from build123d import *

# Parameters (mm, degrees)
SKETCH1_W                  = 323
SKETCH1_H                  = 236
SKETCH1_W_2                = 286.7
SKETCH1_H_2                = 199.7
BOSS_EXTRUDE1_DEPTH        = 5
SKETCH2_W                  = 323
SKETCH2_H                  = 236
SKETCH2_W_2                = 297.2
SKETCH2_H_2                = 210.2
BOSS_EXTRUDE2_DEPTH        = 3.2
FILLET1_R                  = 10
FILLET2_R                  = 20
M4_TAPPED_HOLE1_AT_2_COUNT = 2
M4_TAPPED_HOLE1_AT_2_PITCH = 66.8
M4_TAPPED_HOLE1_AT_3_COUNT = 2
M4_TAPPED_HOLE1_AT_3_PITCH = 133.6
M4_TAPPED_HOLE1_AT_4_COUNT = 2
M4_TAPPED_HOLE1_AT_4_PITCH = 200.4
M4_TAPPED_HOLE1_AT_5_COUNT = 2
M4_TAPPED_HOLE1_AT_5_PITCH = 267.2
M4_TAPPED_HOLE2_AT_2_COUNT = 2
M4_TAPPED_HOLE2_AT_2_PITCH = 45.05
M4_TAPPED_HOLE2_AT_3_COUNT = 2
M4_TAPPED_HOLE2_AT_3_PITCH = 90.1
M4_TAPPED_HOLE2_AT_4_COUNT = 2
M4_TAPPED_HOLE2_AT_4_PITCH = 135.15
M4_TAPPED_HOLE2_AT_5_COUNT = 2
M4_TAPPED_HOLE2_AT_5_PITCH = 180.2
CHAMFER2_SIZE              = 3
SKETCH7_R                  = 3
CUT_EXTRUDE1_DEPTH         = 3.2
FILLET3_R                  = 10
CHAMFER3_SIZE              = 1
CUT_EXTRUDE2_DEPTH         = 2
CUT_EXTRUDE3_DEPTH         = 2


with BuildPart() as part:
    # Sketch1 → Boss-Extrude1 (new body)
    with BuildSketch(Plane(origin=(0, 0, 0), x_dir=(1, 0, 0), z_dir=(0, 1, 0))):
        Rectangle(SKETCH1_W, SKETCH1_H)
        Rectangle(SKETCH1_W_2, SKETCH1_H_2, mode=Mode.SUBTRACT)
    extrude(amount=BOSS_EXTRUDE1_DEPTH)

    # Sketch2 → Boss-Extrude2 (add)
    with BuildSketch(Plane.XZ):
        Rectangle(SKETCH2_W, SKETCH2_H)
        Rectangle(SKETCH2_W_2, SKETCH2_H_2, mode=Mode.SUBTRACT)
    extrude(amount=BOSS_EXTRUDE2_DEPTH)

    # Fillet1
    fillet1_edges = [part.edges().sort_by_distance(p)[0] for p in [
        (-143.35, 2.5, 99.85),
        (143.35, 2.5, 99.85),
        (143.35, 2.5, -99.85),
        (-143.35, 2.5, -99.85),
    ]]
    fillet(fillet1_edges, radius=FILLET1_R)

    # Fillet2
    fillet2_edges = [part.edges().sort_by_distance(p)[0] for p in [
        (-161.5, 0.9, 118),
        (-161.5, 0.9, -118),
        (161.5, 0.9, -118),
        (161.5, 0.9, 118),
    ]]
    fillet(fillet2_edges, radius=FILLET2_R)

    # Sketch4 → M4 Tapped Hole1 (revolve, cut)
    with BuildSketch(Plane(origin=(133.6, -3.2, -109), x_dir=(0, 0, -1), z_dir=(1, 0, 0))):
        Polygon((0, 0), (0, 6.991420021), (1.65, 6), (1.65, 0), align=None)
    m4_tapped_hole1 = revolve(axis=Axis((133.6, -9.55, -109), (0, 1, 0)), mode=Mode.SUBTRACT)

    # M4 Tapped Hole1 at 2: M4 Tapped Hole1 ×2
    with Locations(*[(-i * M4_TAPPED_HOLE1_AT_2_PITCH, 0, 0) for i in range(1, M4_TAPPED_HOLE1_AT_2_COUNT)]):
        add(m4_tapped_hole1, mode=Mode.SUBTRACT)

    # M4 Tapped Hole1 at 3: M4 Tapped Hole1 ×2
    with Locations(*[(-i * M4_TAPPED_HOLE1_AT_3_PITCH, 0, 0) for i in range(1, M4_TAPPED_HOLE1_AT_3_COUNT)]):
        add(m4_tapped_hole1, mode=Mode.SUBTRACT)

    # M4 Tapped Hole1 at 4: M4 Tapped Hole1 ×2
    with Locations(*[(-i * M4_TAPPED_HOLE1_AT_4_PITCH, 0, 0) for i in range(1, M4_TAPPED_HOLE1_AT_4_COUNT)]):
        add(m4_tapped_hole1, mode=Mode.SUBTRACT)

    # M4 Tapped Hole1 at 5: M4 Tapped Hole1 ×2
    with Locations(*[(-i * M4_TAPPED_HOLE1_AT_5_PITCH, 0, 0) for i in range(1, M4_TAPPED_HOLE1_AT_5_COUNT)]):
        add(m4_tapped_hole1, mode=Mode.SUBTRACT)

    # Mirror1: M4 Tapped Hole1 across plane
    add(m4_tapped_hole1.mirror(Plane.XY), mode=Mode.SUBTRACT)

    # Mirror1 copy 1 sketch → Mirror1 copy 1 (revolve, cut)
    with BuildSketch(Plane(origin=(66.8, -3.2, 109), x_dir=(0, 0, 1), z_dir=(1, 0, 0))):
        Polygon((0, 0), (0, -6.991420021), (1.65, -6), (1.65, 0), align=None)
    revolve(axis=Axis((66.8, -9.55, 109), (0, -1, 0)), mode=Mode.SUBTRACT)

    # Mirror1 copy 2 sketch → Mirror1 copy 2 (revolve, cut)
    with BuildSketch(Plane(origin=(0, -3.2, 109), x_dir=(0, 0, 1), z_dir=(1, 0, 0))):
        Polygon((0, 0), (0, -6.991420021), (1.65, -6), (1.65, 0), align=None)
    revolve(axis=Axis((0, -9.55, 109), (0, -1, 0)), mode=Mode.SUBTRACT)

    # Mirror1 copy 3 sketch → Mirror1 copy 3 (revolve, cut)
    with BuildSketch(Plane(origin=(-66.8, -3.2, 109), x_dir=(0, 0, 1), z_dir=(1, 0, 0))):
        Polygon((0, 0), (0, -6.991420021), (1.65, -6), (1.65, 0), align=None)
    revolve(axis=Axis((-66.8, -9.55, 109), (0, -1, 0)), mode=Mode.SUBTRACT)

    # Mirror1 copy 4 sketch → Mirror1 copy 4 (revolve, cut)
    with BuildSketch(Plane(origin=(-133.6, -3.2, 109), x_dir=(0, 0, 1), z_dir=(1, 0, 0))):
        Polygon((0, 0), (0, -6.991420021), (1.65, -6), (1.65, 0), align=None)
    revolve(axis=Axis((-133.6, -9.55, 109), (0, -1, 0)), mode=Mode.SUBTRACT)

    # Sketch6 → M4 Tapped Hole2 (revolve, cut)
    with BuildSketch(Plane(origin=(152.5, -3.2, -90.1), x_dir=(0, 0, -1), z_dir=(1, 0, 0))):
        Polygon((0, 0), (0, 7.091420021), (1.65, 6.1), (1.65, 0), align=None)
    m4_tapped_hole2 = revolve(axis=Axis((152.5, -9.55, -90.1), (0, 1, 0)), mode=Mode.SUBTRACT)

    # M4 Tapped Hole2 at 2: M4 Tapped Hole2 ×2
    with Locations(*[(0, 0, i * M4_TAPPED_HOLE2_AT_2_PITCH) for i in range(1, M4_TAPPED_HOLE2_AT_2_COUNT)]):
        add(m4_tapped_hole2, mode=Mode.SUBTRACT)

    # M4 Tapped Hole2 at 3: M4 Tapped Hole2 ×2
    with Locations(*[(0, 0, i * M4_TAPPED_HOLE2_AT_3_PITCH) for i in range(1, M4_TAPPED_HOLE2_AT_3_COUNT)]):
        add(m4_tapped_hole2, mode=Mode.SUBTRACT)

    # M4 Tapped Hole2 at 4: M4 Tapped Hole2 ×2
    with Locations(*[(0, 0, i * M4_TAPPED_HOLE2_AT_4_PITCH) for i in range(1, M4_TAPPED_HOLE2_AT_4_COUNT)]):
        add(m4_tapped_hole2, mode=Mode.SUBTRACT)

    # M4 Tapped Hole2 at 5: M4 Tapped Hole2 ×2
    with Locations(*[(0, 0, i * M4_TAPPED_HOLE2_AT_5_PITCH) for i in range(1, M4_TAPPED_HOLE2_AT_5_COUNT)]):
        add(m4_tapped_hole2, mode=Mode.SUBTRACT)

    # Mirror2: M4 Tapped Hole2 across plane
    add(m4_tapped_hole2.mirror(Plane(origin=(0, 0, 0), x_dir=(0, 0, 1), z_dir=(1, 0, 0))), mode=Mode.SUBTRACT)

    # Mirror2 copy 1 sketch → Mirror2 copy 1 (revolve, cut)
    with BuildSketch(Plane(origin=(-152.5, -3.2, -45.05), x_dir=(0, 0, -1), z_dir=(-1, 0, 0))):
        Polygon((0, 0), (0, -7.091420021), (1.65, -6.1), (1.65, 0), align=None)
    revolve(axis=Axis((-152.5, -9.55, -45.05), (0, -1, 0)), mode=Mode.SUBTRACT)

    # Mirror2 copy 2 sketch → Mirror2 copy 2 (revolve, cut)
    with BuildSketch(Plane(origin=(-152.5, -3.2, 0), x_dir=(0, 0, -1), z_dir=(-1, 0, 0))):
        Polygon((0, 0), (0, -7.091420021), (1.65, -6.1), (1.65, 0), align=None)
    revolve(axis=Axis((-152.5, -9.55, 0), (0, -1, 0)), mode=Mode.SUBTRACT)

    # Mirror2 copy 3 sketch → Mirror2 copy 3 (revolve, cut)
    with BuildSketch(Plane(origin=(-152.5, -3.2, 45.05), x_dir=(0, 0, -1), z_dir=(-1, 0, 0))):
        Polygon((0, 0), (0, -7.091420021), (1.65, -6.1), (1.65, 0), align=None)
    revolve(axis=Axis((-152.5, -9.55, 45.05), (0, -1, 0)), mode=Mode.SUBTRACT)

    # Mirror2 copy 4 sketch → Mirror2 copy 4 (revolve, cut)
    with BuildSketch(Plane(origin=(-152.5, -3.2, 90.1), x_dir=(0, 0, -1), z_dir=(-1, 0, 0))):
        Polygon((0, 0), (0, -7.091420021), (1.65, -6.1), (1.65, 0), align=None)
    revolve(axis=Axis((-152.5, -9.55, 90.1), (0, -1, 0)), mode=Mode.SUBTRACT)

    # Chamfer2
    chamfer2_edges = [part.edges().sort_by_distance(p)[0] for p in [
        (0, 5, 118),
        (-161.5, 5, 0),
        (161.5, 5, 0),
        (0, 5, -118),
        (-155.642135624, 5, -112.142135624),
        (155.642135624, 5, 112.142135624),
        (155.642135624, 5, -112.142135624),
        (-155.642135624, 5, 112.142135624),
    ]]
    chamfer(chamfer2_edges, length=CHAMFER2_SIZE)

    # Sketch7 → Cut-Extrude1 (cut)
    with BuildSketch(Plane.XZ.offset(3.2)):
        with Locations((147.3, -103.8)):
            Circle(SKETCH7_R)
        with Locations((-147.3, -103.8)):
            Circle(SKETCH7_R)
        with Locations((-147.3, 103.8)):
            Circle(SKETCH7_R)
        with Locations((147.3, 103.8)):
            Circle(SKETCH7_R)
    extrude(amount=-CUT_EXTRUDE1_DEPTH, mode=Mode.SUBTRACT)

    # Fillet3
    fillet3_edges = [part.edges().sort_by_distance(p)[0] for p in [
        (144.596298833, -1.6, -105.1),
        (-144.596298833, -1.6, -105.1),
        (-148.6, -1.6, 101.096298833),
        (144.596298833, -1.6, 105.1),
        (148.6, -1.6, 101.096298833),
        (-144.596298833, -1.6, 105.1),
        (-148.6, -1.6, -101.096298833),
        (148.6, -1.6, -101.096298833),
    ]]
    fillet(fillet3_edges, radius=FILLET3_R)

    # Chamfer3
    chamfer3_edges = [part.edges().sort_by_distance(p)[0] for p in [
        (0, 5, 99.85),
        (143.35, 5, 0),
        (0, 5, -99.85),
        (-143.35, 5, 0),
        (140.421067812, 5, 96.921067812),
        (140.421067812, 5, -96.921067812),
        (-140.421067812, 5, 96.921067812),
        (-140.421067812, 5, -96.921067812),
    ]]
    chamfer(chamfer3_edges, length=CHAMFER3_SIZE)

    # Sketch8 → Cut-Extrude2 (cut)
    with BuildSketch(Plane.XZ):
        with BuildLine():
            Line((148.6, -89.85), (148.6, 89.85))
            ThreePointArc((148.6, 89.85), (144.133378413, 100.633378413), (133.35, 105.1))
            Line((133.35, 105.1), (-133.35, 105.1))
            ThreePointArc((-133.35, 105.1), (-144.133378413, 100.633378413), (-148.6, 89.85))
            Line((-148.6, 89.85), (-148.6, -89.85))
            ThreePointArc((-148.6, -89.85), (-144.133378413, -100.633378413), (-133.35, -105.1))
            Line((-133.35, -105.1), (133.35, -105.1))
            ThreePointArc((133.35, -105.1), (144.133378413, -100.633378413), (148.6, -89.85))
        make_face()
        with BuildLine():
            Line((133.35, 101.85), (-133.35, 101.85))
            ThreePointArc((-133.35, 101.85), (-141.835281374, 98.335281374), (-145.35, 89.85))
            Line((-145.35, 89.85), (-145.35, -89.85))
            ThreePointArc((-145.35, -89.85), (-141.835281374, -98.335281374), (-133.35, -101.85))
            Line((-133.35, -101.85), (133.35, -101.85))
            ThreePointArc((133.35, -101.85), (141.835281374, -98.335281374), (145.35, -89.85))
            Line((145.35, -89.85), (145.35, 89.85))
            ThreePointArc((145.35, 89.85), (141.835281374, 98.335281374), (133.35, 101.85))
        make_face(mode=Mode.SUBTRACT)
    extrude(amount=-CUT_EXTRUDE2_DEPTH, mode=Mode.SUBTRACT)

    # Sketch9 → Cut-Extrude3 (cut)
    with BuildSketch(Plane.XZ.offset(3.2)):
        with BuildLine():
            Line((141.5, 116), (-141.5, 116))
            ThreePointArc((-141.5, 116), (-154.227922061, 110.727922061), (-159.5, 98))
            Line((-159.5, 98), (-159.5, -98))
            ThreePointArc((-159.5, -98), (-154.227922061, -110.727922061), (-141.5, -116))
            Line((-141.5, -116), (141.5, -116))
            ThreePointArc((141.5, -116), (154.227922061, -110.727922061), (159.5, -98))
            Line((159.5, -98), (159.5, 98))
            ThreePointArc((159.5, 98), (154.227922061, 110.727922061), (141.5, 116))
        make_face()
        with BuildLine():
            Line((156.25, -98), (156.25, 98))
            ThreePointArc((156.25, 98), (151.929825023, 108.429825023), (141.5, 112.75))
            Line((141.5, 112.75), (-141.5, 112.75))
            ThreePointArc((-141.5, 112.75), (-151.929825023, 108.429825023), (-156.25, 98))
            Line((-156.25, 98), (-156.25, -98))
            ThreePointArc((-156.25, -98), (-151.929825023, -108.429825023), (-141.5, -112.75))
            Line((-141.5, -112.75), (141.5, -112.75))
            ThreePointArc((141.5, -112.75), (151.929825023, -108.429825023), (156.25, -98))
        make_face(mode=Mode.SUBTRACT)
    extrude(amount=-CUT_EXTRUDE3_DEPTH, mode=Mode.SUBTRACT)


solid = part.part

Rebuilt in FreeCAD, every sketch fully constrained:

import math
import FreeCAD as App
import Part
import Sketcher
from FreeCAD import Vector
Q = App.Units.Quantity


def edges_at(feature, points):
    """Names of the edges that pass closest to the given points."""
    edges = feature.Shape.Edges
    near = lambda p: min(range(len(edges)), key=lambda i: edges[i].distToShape(Part.Vertex(*p))[0])
    return sorted({f"Edge{near(p) + 1}" for p in points})


def add_polygon(sketch, points):
    """Adds a closed chain of lines whose ends are joined by coincident constraints."""
    first, n = sketch.GeometryCount, len(points)
    for a, b in zip(points, points[1:] + points[:1]):
        sketch.addGeometry(Part.LineSegment(App.Vector(*a, 0), App.Vector(*b, 0)), False)
    for i in range(n):
        sketch.addConstraint(Sketcher.Constraint("Coincident", first + i, 2, first + (i + 1) % n, 1))

doc = App.newDocument("Part")
body = doc.addObject("PartDesign::Body", "Body")

sketch1 = body.newObject("Sketcher::SketchObject", "Sketch")
sketch1.AttachmentSupport = (doc.getObject("XZ_Plane"), [""])
sketch1.MapMode = "FlatFace"
add_polygon(sketch1, [(-162, -118), (-162, 118), (162, 118), (162, -118)])
add_polygon(sketch1, [(143, 100), (-143, 100), (-143, -100), (143, -100)])
sketch1.addConstraint([
    Sketcher.Constraint("Vertical", 0),
    Sketcher.Constraint("Horizontal", 1),
    Sketcher.Constraint("Vertical", 2),
    Sketcher.Constraint("Horizontal", 3),
    Sketcher.Constraint("Horizontal", 4),
    Sketcher.Constraint("Vertical", 5),
    Sketcher.Constraint("Horizontal", 6),
    Sketcher.Constraint("Vertical", 7),
    Sketcher.Constraint("Symmetric", 0, 2, 2, 2, -1, 1),
    Sketcher.Constraint("Symmetric", 4, 2, 6, 2, -1, 1),
    Sketcher.Constraint("DistanceX", 1, 1, 1, 2, 323.0),
    Sketcher.Constraint("DistanceY", 0, 1, 0, 2, 236.0),
    Sketcher.Constraint("DistanceX", 4, 2, 4, 1, 286.7),
    Sketcher.Constraint("DistanceY", 5, 2, 5, 1, 199.7),
])
pad1 = body.newObject("PartDesign::Pad", "Pad")
pad1.Profile = sketch1
pad1.Length = 5
pad1.Reversed = True

sketch2 = body.newObject("Sketcher::SketchObject", "Sketch001")
sketch2.AttachmentSupport = (doc.getObject("XZ_Plane"), [""])
sketch2.MapMode = "FlatFace"
add_polygon(sketch2, [(-162, 118), (-162, -118), (162, -118), (162, 118)])
add_polygon(sketch2, [(149, -105), (-149, -105), (-149, 105), (149, 105)])
sketch2.addConstraint([
    Sketcher.Constraint("Vertical", 0),
    Sketcher.Constraint("Horizontal", 1),
    Sketcher.Constraint("Vertical", 2),
    Sketcher.Constraint("Horizontal", 3),
    Sketcher.Constraint("Horizontal", 4),
    Sketcher.Constraint("Vertical", 5),
    Sketcher.Constraint("Horizontal", 6),
    Sketcher.Constraint("Vertical", 7),
    Sketcher.Constraint("Symmetric", 0, 2, 2, 2, -1, 1),
    Sketcher.Constraint("Symmetric", 4, 2, 6, 2, -1, 1),
    Sketcher.Constraint("DistanceX", 1, 1, 1, 2, 323.0),
    Sketcher.Constraint("DistanceY", 0, 2, 0, 1, 236.0),
    Sketcher.Constraint("DistanceX", 4, 2, 4, 1, 297.2),
    Sketcher.Constraint("DistanceY", 5, 1, 5, 2, 210.2),
])
pad2 = body.newObject("PartDesign::Pad", "Pad001")
pad2.Profile = sketch2
pad2.Length = 3.2
doc.recompute()

fillet = body.newObject("PartDesign::Fillet", "Fillet")
fillet.Base = (pad2, edges_at(pad2, [
    (-143.35, 2.5, 99.85),
    (143.35, 2.5, 99.85),
    (143.35, 2.5, -99.85),
    (-143.35, 2.5, -99.85),
]))
fillet.Radius = 10
doc.recompute()

fillet2 = body.newObject("PartDesign::Fillet", "Fillet001")
fillet2.Base = (fillet, edges_at(fillet, [
    (-161.5, 0.9, 118),
    (-161.5, 0.9, -118),
    (161.5, 0.9, -118),
    (161.5, 0.9, 118),
]))
fillet2.Radius = 20

sketch3 = body.newObject("Sketcher::SketchObject", "Sketch002")
sketch3.AttachmentSupport = (doc.getObject("YZ_Plane"), [""])
sketch3.MapMode = "FlatFace"
sketch3.AttachmentOffset = App.Placement(Vector(0, 0, 133.6), App.Rotation())
add_polygon(sketch3, [(3.8, -109), (-3.2, -109), (-3.2, -110.7), (2.8, -110.7)])
sketch3.addGeometry(Part.LineSegment(Vector(-3.2, -109, 0), Vector(3.8, -109, 0)), True)
sketch3.addConstraint([
    Sketcher.Constraint("Horizontal", 0),
    Sketcher.Constraint("Vertical", 1),
    Sketcher.Constraint("Horizontal", 2),
    Sketcher.Constraint("Horizontal", 4),
    Sketcher.Constraint("Coincident", 4, 1, 0, 2),
    Sketcher.Constraint("Equal", 0, 4),
    Sketcher.Constraint("DistanceX", 2, 1, 2, 2, 6.0),
    Sketcher.Constraint("Angle", 3, Q("59 deg")),
    Sketcher.Constraint("DistanceY", 0, 2, -1, 1, 109.0),
    Sketcher.Constraint("DistanceY", 1, 2, 1, 1, 1.65),
    Sketcher.Constraint("DistanceX", 0, 2, -1, 1, 3.2),
])
groove = body.newObject("PartDesign::Groove", "Groove")
groove.Profile = sketch3
groove.ReferenceAxis = (sketch3, ["Axis0"])
groove.Angle = 360
doc.recompute()

linearpattern = body.newObject("PartDesign::LinearPattern", "LinearPattern")
linearpattern.Originals = [groove]
linearpattern.Direction = (doc.getObject("X_Axis"), [""])
linearpattern.Mode = "offset"
linearpattern.Offset = 66.8
linearpattern.Occurrences = 2
linearpattern.Reversed = True
body.Tip = linearpattern
doc.recompute()

linearpattern2 = body.newObject("PartDesign::LinearPattern", "LinearPattern001")
linearpattern2.Originals = [groove]
linearpattern2.Direction = (doc.getObject("X_Axis"), [""])
linearpattern2.Mode = "offset"
linearpattern2.Offset = 133.6
linearpattern2.Occurrences = 2
linearpattern2.Reversed = True
body.Tip = linearpattern2
doc.recompute()

linearpattern3 = body.newObject("PartDesign::LinearPattern", "LinearPattern002")
linearpattern3.Originals = [groove]
linearpattern3.Direction = (doc.getObject("X_Axis"), [""])
linearpattern3.Mode = "offset"
linearpattern3.Offset = 200.4
linearpattern3.Occurrences = 2
linearpattern3.Reversed = True
body.Tip = linearpattern3
doc.recompute()

linearpattern4 = body.newObject("PartDesign::LinearPattern", "LinearPattern003")
linearpattern4.Originals = [groove]
linearpattern4.Direction = (doc.getObject("X_Axis"), [""])
linearpattern4.Mode = "offset"
linearpattern4.Offset = 267.2
linearpattern4.Occurrences = 2
linearpattern4.Reversed = True
body.Tip = linearpattern4
doc.recompute()

mirrored = body.newObject("PartDesign::Mirrored", "Mirrored")
mirrored.Originals = [groove]
mirrored.MirrorPlane = (doc.getObject("XY_Plane"), [""])
body.Tip = mirrored

sketch4 = body.newObject("Sketcher::SketchObject", "Sketch003")
sketch4.AttachmentSupport = (doc.getObject("YZ_Plane"), [""])
sketch4.MapMode = "FlatFace"
sketch4.AttachmentOffset = App.Placement(Vector(0, 0, 66.8), App.Rotation())
add_polygon(sketch4, [(-3.2, 109), (3.8, 109), (2.8, 110.7), (-3.2, 110.7)])
sketch4.addGeometry(Part.LineSegment(Vector(3.8, 109, 0), Vector(-3.2, 109, 0)), True)
sketch4.addConstraint([
    Sketcher.Constraint("Horizontal", 0),
    Sketcher.Constraint("Horizontal", 2),
    Sketcher.Constraint("Vertical", 3),
    Sketcher.Constraint("Horizontal", 4),
    Sketcher.Constraint("Coincident", 4, 1, 0, 2),
    Sketcher.Constraint("Vertical", 2, 2, 4, 2),
    Sketcher.Constraint("DistanceX", 2, 2, 2, 1, 6.0),
    Sketcher.Constraint("Angle", 1, Q("121 deg")),
    Sketcher.Constraint("DistanceY", -1, 1, 0, 2, 109.0),
    Sketcher.Constraint("DistanceY", 3, 2, 3, 1, 1.65),
    Sketcher.Constraint("DistanceX", -1, 1, 1, 2, 2.8),
])
groove2 = body.newObject("PartDesign::Groove", "Groove001")
groove2.Profile = sketch4
groove2.ReferenceAxis = (sketch4, ["Axis0"])
groove2.Angle = 360

sketch5 = body.newObject("Sketcher::SketchObject", "Sketch004")
sketch5.AttachmentSupport = (doc.getObject("YZ_Plane"), [""])
sketch5.MapMode = "FlatFace"
add_polygon(sketch5, [(-3.2, 109), (3.8, 109), (2.8, 110.7), (-3.2, 110.7)])
sketch5.addGeometry(Part.LineSegment(Vector(3.8, 109, 0), Vector(-3.2, 109, 0)), True)
sketch5.addConstraint([
    Sketcher.Constraint("Horizontal", 0),
    Sketcher.Constraint("Horizontal", 2),
    Sketcher.Constraint("Vertical", 3),
    Sketcher.Constraint("Horizontal", 4),
    Sketcher.Constraint("Coincident", 4, 1, 0, 2),
    Sketcher.Constraint("Vertical", 2, 2, 4, 2),
    Sketcher.Constraint("DistanceX", 2, 2, 2, 1, 6.0),
    Sketcher.Constraint("Angle", 1, Q("121 deg")),
    Sketcher.Constraint("DistanceY", -1, 1, 0, 2, 109.0),
    Sketcher.Constraint("DistanceY", 3, 2, 3, 1, 1.65),
    Sketcher.Constraint("DistanceX", -1, 1, 1, 2, 2.8),
])
groove3 = body.newObject("PartDesign::Groove", "Groove002")
groove3.Profile = sketch5
groove3.ReferenceAxis = (sketch5, ["Axis0"])
groove3.Angle = 360

sketch6 = body.newObject("Sketcher::SketchObject", "Sketch005")
sketch6.AttachmentSupport = (doc.getObject("YZ_Plane"), [""])
sketch6.MapMode = "FlatFace"
sketch6.AttachmentOffset = App.Placement(Vector(0, 0, -66.8), App.Rotation())
add_polygon(sketch6, [(-3.2, 109), (3.8, 109), (2.8, 110.7), (-3.2, 110.7)])
sketch6.addGeometry(Part.LineSegment(Vector(3.8, 109, 0), Vector(-3.2, 109, 0)), True)
sketch6.addConstraint([
    Sketcher.Constraint("Horizontal", 0),
    Sketcher.Constraint("Horizontal", 2),
    Sketcher.Constraint("Vertical", 3),
    Sketcher.Constraint("Horizontal", 4),
    Sketcher.Constraint("Coincident", 4, 1, 0, 2),
    Sketcher.Constraint("Vertical", 2, 2, 4, 2),
    Sketcher.Constraint("DistanceX", 2, 2, 2, 1, 6.0),
    Sketcher.Constraint("Angle", 1, Q("121 deg")),
    Sketcher.Constraint("DistanceY", -1, 1, 0, 2, 109.0),
    Sketcher.Constraint("DistanceY", 3, 2, 3, 1, 1.65),
    Sketcher.Constraint("DistanceX", -1, 1, 1, 2, 2.8),
])
groove4 = body.newObject("PartDesign::Groove", "Groove003")
groove4.Profile = sketch6
groove4.ReferenceAxis = (sketch6, ["Axis0"])
groove4.Angle = 360

sketch7 = body.newObject("Sketcher::SketchObject", "Sketch006")
sketch7.AttachmentSupport = (doc.getObject("YZ_Plane"), [""])
sketch7.MapMode = "FlatFace"
sketch7.AttachmentOffset = App.Placement(Vector(0, 0, -133.6), App.Rotation())
add_polygon(sketch7, [(-3.2, 109), (3.8, 109), (2.8, 110.7), (-3.2, 110.7)])
sketch7.addGeometry(Part.LineSegment(Vector(3.8, 109, 0), Vector(-3.2, 109, 0)), True)
sketch7.addConstraint([
    Sketcher.Constraint("Horizontal", 0),
    Sketcher.Constraint("Horizontal", 2),
    Sketcher.Constraint("Vertical", 3),
    Sketcher.Constraint("Horizontal", 4),
    Sketcher.Constraint("Coincident", 4, 1, 0, 2),
    Sketcher.Constraint("Vertical", 2, 2, 4, 2),
    Sketcher.Constraint("DistanceX", 2, 2, 2, 1, 6.0),
    Sketcher.Constraint("Angle", 1, Q("121 deg")),
    Sketcher.Constraint("DistanceY", -1, 1, 0, 2, 109.0),
    Sketcher.Constraint("DistanceY", 3, 2, 3, 1, 1.65),
    Sketcher.Constraint("DistanceX", -1, 1, 1, 2, 2.8),
])
groove5 = body.newObject("PartDesign::Groove", "Groove004")
groove5.Profile = sketch7
groove5.ReferenceAxis = (sketch7, ["Axis0"])
groove5.Angle = 360

sketch8 = body.newObject("Sketcher::SketchObject", "Sketch007")
sketch8.AttachmentSupport = (doc.getObject("YZ_Plane"), [""])
sketch8.MapMode = "FlatFace"
sketch8.AttachmentOffset = App.Placement(Vector(0, 0, 152.5), App.Rotation())
add_polygon(sketch8, [(3.9, -90.1), (-3.2, -90.1), (-3.2, -91.8), (2.9, -91.8)])
sketch8.addGeometry(Part.LineSegment(Vector(-3.2, -90.1, 0), Vector(3.9, -90.1, 0)), True)
sketch8.addConstraint([
    Sketcher.Constraint("Horizontal", 0),
    Sketcher.Constraint("Vertical", 1),
    Sketcher.Constraint("Horizontal", 2),
    Sketcher.Constraint("Horizontal", 4),
    Sketcher.Constraint("Coincident", 4, 1, 0, 2),
    Sketcher.Constraint("Equal", 0, 4),
    Sketcher.Constraint("Angle", 3, Q("59 deg")),
    Sketcher.Constraint("DistanceX", 2, 1, 2, 2, 6.1),
    Sketcher.Constraint("DistanceY", 1, 2, 1, 1, 1.65),
    Sketcher.Constraint("DistanceX", 0, 2, -1, 1, 3.2),
    Sketcher.Constraint("DistanceY", 0, 2, -1, 1, 90.1),
])
groove6 = body.newObject("PartDesign::Groove", "Groove005")
groove6.Profile = sketch8
groove6.ReferenceAxis = (sketch8, ["Axis0"])
groove6.Angle = 360
doc.recompute()

linearpattern5 = body.newObject("PartDesign::LinearPattern", "LinearPattern004")
linearpattern5.Originals = [groove6]
linearpattern5.Direction = (doc.getObject("Z_Axis"), [""])
linearpattern5.Mode = "offset"
linearpattern5.Offset = 45.05
linearpattern5.Occurrences = 2
body.Tip = linearpattern5
doc.recompute()

linearpattern6 = body.newObject("PartDesign::LinearPattern", "LinearPattern005")
linearpattern6.Originals = [groove6]
linearpattern6.Direction = (doc.getObject("Z_Axis"), [""])
linearpattern6.Mode = "offset"
linearpattern6.Offset = 90.1
linearpattern6.Occurrences = 2
body.Tip = linearpattern6
doc.recompute()

linearpattern7 = body.newObject("PartDesign::LinearPattern", "LinearPattern006")
linearpattern7.Originals = [groove6]
linearpattern7.Direction = (doc.getObject("Z_Axis"), [""])
linearpattern7.Mode = "offset"
linearpattern7.Offset = 135.15
linearpattern7.Occurrences = 2
body.Tip = linearpattern7
doc.recompute()

linearpattern8 = body.newObject("PartDesign::LinearPattern", "LinearPattern007")
linearpattern8.Originals = [groove6]
linearpattern8.Direction = (doc.getObject("Z_Axis"), [""])
linearpattern8.Mode = "offset"
linearpattern8.Offset = 180.2
linearpattern8.Occurrences = 2
body.Tip = linearpattern8
doc.recompute()

mirrored2 = body.newObject("PartDesign::Mirrored", "Mirrored001")
mirrored2.Originals = [groove6]
mirrored2.MirrorPlane = (doc.getObject("YZ_Plane"), [""])
body.Tip = mirrored2

sketch9 = body.newObject("Sketcher::SketchObject", "Sketch008")
sketch9.AttachmentSupport = (doc.getObject("YZ_Plane"), [""])
sketch9.MapMode = "FlatFace"
sketch9.AttachmentOffset = App.Placement(Vector(0, 0, -152.5), App.Rotation())
add_polygon(sketch9, [(-3.2, -45), (3.9, -45), (2.9, -46.7), (-3.2, -46.7)])
sketch9.addGeometry(Part.LineSegment(Vector(3.9, -45, 0), Vector(-3.2, -45, 0)), True)
sketch9.addConstraint([
    Sketcher.Constraint("Horizontal", 0),
    Sketcher.Constraint("Horizontal", 2),
    Sketcher.Constraint("Vertical", 3),
    Sketcher.Constraint("Horizontal", 4),
    Sketcher.Constraint("Coincident", 4, 1, 0, 2),
    Sketcher.Constraint("Vertical", 2, 2, 4, 2),
    Sketcher.Constraint("Angle", 1, Q("-121 deg")),
    Sketcher.Constraint("DistanceX", 2, 2, 2, 1, 6.1),
    Sketcher.Constraint("DistanceY", 3, 1, 3, 2, 1.65),
    Sketcher.Constraint("DistanceX", -1, 1, 1, 2, 2.9),
    Sketcher.Constraint("DistanceY", 1, 2, -1, 1, 46.7),
])
groove7 = body.newObject("PartDesign::Groove", "Groove006")
groove7.Profile = sketch9
groove7.ReferenceAxis = (sketch9, ["Axis0"])
groove7.Angle = 360

sketch10 = body.newObject("Sketcher::SketchObject", "Sketch009")
sketch10.AttachmentSupport = (doc.getObject("YZ_Plane"), [""])
sketch10.MapMode = "FlatFace"
sketch10.AttachmentOffset = App.Placement(Vector(0, 0, -152.5), App.Rotation())
add_polygon(sketch10, [(-3.2, 0), (3.9, 0), (2.9, -1.6), (-3.2, -1.6)])
sketch10.addConstraint([
    Sketcher.Constraint("Horizontal", 0),
    Sketcher.Constraint("Horizontal", 2),
    Sketcher.Constraint("Vertical", 3),
    Sketcher.Constraint("PointOnObject", 0, 2, -1),
    Sketcher.Constraint("Angle", 1, Q("-121 deg")),
    Sketcher.Constraint("DistanceX", 2, 2, 2, 1, 6.1),
    Sketcher.Constraint("DistanceY", 3, 1, 3, 2, 1.65),
    Sketcher.Constraint("DistanceX", -1, 1, 1, 2, 2.9),
])
groove8 = body.newObject("PartDesign::Groove", "Groove007")
groove8.Profile = sketch10
groove8.ReferenceAxis = (sketch10, ["H_Axis"])
groove8.Angle = 360

sketch11 = body.newObject("Sketcher::SketchObject", "Sketch010")
sketch11.AttachmentSupport = (doc.getObject("YZ_Plane"), [""])
sketch11.MapMode = "FlatFace"
sketch11.AttachmentOffset = App.Placement(Vector(0, 0, -152.5), App.Rotation())
add_polygon(sketch11, [(-3.2, 45), (3.9, 45), (2.9, 43.4), (-3.2, 43.4)])
sketch11.addGeometry(Part.LineSegment(Vector(3.9, 45, 0), Vector(-3.2, 45, 0)), True)
sketch11.addConstraint([
    Sketcher.Constraint("Horizontal", 0),
    Sketcher.Constraint("Horizontal", 2),
    Sketcher.Constraint("Vertical", 3),
    Sketcher.Constraint("Horizontal", 4),
    Sketcher.Constraint("Coincident", 4, 1, 0, 2),
    Sketcher.Constraint("Vertical", 2, 2, 4, 2),
    Sketcher.Constraint("Angle", 1, Q("-121 deg")),
    Sketcher.Constraint("DistanceX", 2, 2, 2, 1, 6.1),
    Sketcher.Constraint("DistanceY", 3, 1, 3, 2, 1.65),
    Sketcher.Constraint("DistanceX", -1, 1, 1, 2, 2.9),
    Sketcher.Constraint("DistanceY", -1, 1, 1, 2, 43.4),
])
groove9 = body.newObject("PartDesign::Groove", "Groove008")
groove9.Profile = sketch11
groove9.ReferenceAxis = (sketch11, ["Axis0"])
groove9.Angle = 360

sketch12 = body.newObject("Sketcher::SketchObject", "Sketch011")
sketch12.AttachmentSupport = (doc.getObject("YZ_Plane"), [""])
sketch12.MapMode = "FlatFace"
sketch12.AttachmentOffset = App.Placement(Vector(0, 0, -152.5), App.Rotation())
add_polygon(sketch12, [(-3.2, 90.1), (3.9, 90.1), (2.9, 88.5), (-3.2, 88.5)])
sketch12.addGeometry(Part.LineSegment(Vector(3.9, 90.1, 0), Vector(-3.2, 90.1, 0)), True)
sketch12.addConstraint([
    Sketcher.Constraint("Horizontal", 0),
    Sketcher.Constraint("Horizontal", 2),
    Sketcher.Constraint("Vertical", 3),
    Sketcher.Constraint("Horizontal", 4),
    Sketcher.Constraint("Coincident", 4, 1, 0, 2),
    Sketcher.Constraint("Vertical", 2, 2, 4, 2),
    Sketcher.Constraint("Angle", 1, Q("-121 deg")),
    Sketcher.Constraint("DistanceX", 2, 2, 2, 1, 6.1),
    Sketcher.Constraint("DistanceY", 3, 1, 3, 2, 1.65),
    Sketcher.Constraint("DistanceY", -1, 1, 0, 2, 90.1),
    Sketcher.Constraint("DistanceX", -1, 1, 1, 2, 2.9),
])
groove10 = body.newObject("PartDesign::Groove", "Groove009")
groove10.Profile = sketch12
groove10.ReferenceAxis = (sketch12, ["Axis0"])
groove10.Angle = 360
doc.recompute()

chamfer = body.newObject("PartDesign::Chamfer", "Chamfer")
chamfer.Base = (groove10, edges_at(groove10, [
    (0, 5, 118),
    (-161.5, 5, 0),
    (161.5, 5, 0),
    (0, 5, -118),
    (-155.642, 5, -112.142),
    (155.642, 5, 112.142),
    (155.642, 5, -112.142),
    (-155.642, 5, 112.142),
]))
chamfer.Size = 3

sketch13 = body.newObject("Sketcher::SketchObject", "Sketch012")
sketch13.AttachmentSupport = (doc.getObject("XZ_Plane"), [""])
sketch13.MapMode = "FlatFace"
sketch13.AttachmentOffset = App.Placement(Vector(0, 0, 3.2), App.Rotation())
sketch13.addGeometry([
    Part.Circle(Vector(147.3, -103.8, 0), Vector(0, 0, 1), 3),
    Part.Circle(Vector(-147.3, -103.8, 0), Vector(0, 0, 1), 3),
    Part.Circle(Vector(-147.3, 103.8, 0), Vector(0, 0, 1), 3),
    Part.Circle(Vector(147.3, 103.8, 0), Vector(0, 0, 1), 3),
], False)
sketch13.addConstraint([
    Sketcher.Constraint("Equal", 0, 1),
    Sketcher.Constraint("Equal", 1, 2),
    Sketcher.Constraint("Equal", 2, 3),
    Sketcher.Constraint("Symmetric", 0, 3, 2, 3, -1, 1),
    Sketcher.Constraint("Symmetric", 1, 3, 3, 3, -1, 1),
    Sketcher.Constraint("Symmetric", 0, 3, 1, 3, -2),
    Sketcher.Constraint("Diameter", 0, 6.0),
    Sketcher.Constraint("DistanceX", -1, 1, 0, 3, 147.3),
    Sketcher.Constraint("DistanceY", 0, 3, -1, 1, 103.8),
])
pocket1 = body.newObject("PartDesign::Pocket", "Pocket")
pocket1.Profile = sketch13
pocket1.Length = 3.2
doc.recompute()

fillet3 = body.newObject("PartDesign::Fillet", "Fillet002")
fillet3.Base = (pocket1, edges_at(pocket1, [
    (144.596, -1.6, -105.1),
    (-144.596, -1.6, -105.1),
    (-148.6, -1.6, 101.096),
    (144.596, -1.6, 105.1),
    (148.6, -1.6, 101.096),
    (-144.596, -1.6, 105.1),
    (-148.6, -1.6, -101.096),
    (148.6, -1.6, -101.096),
]))
fillet3.Radius = 10
doc.recompute()

chamfer2 = body.newObject("PartDesign::Chamfer", "Chamfer001")
chamfer2.Base = (fillet3, edges_at(fillet3, [
    (0, 5, 99.85),
    (143.35, 5, 0),
    (0, 5, -99.85),
    (-143.35, 5, 0),
    (140.421, 5, 96.921),
    (140.421, 5, -96.921),
    (-140.421, 5, 96.921),
    (-140.421, 5, -96.921),
]))
chamfer2.Size = 1

sketch14 = body.newObject("Sketcher::SketchObject", "Sketch013")
sketch14.AttachmentSupport = (doc.getObject("XZ_Plane"), [""])
sketch14.MapMode = "FlatFace"
sketch14.addGeometry([
    Part.LineSegment(Vector(149, -90, 0), Vector(149, 90, 0)),
    Part.ArcOfCircle(Part.Circle(Vector(133, 90, 0), Vector(0, 0, 1), 15), math.radians(0), math.radians(90)),
    Part.LineSegment(Vector(133, 105, 0), Vector(-133, 105, 0)),
    Part.ArcOfCircle(Part.Circle(Vector(-133, 90, 0), Vector(0, 0, 1), 15), math.radians(90), math.radians(180)),
    Part.LineSegment(Vector(-149, 90, 0), Vector(-149, -90, 0)),
    Part.ArcOfCircle(Part.Circle(Vector(-133, -90, 0), Vector(0, 0, 1), 15), math.radians(180), math.radians(270)),
    Part.LineSegment(Vector(-133, -105, 0), Vector(133, -105, 0)),
    Part.ArcOfCircle(Part.Circle(Vector(133, -90, 0), Vector(0, 0, 1), 15), math.radians(-90), math.radians(0)),
    Part.LineSegment(Vector(-133, 102, 0), Vector(133, 102, 0)),
    Part.ArcOfCircle(Part.Circle(Vector(133, 90, 0), Vector(0, 0, 1), 12), math.radians(0), math.radians(90)),
    Part.LineSegment(Vector(145, 90, 0), Vector(145, -90, 0)),
    Part.ArcOfCircle(Part.Circle(Vector(133, -90, 0), Vector(0, 0, 1), 12), math.radians(-90), math.radians(0)),
    Part.LineSegment(Vector(133, -102, 0), Vector(-133, -102, 0)),
    Part.ArcOfCircle(Part.Circle(Vector(-133, -90, 0), Vector(0, 0, 1), 12), math.radians(-180), math.radians(-90)),
    Part.LineSegment(Vector(-145, -90, 0), Vector(-145, 90, 0)),
    Part.ArcOfCircle(Part.Circle(Vector(-133, 90, 0), Vector(0, 0, 1), 12), math.radians(90), math.radians(180)),
], False)
sketch14.addConstraint([
    Sketcher.Constraint("Tangent", 0, 2, 1, 1),
    Sketcher.Constraint("Tangent", 1, 2, 2, 1),
    Sketcher.Constraint("Tangent", 2, 2, 3, 1),
    Sketcher.Constraint("Tangent", 3, 2, 4, 1),
    Sketcher.Constraint("Tangent", 4, 2, 5, 1),
    Sketcher.Constraint("Tangent", 5, 2, 6, 1),
    Sketcher.Constraint("Tangent", 6, 2, 7, 1),
    Sketcher.Constraint("Tangent", 7, 2, 0, 1),
    Sketcher.Constraint("Tangent", 8, 2, 9, 2),
    Sketcher.Constraint("Tangent", 9, 1, 10, 1),
    Sketcher.Constraint("Tangent", 10, 2, 11, 2),
    Sketcher.Constraint("Tangent", 11, 1, 12, 1),
    Sketcher.Constraint("Tangent", 12, 2, 13, 2),
    Sketcher.Constraint("Tangent", 13, 1, 14, 1),
    Sketcher.Constraint("Tangent", 14, 2, 15, 2),
    Sketcher.Constraint("Tangent", 15, 1, 8, 1),
    Sketcher.Constraint("Vertical", 0),
    Sketcher.Constraint("Horizontal", 2),
    Sketcher.Constraint("Vertical", 4),
    Sketcher.Constraint("Horizontal", 6),
    Sketcher.Constraint("Horizontal", 8),
    Sketcher.Constraint("Vertical", 10),
    Sketcher.Constraint("Horizontal", 12),
    Sketcher.Constraint("Vertical", 14),
    Sketcher.Constraint("Coincident", 9, 3, 1, 3),
    Sketcher.Constraint("Coincident", 11, 3, 7, 3),
    Sketcher.Constraint("Coincident", 13, 3, 5, 3),
    Sketcher.Constraint("Equal", 1, 3),
    Sketcher.Constraint("Equal", 3, 5),
    Sketcher.Constraint("Equal", 5, 7),
    Sketcher.Constraint("Equal", 13, 15),
    Sketcher.Constraint("Symmetric", 1, 3, 5, 3, -1, 1),
    Sketcher.Constraint("Radius", 9, 12.0),
    Sketcher.Constraint("Radius", 1, 15.25),
    Sketcher.Constraint("DistanceX", 2, 2, 2, 1, 266.7),
    Sketcher.Constraint("DistanceY", 0, 1, 0, 2, 179.7),
])
pocket2 = body.newObject("PartDesign::Pocket", "Pocket001")
pocket2.Profile = sketch14
pocket2.Length = 2

sketch15 = body.newObject("Sketcher::SketchObject", "Sketch014")
sketch15.AttachmentSupport = (doc.getObject("XZ_Plane"), [""])
sketch15.MapMode = "FlatFace"
sketch15.AttachmentOffset = App.Placement(Vector(0, 0, 3.2), App.Rotation())
sketch15.addGeometry([
    Part.LineSegment(Vector(142, 116, 0), Vector(-142, 116, 0)),
    Part.ArcOfCircle(Part.Circle(Vector(-141, 98, 0), Vector(0, 0, 1), 18), math.radians(90), math.radians(180)),
    Part.LineSegment(Vector(-160, 98, 0), Vector(-160, -98, 0)),
    Part.ArcOfCircle(Part.Circle(Vector(-141, -98, 0), Vector(0, 0, 1), 18), math.radians(-180), math.radians(-90)),
    Part.LineSegment(Vector(-142, -116, 0), Vector(142, -116, 0)),
    Part.ArcOfCircle(Part.Circle(Vector(141, -98, 0), Vector(0, 0, 1), 18), math.radians(-90), math.radians(0)),
    Part.LineSegment(Vector(160, -98, 0), Vector(160, 98, 0)),
    Part.ArcOfCircle(Part.Circle(Vector(141, 98, 0), Vector(0, 0, 1), 18), math.radians(0), math.radians(90)),
    Part.LineSegment(Vector(156, 98, 0), Vector(156, -98, 0)),
    Part.ArcOfCircle(Part.Circle(Vector(142, -98, 0), Vector(0, 0, 1), 15), math.radians(-90), math.radians(0)),
    Part.LineSegment(Vector(142, -113, 0), Vector(-142, -113, 0)),
    Part.ArcOfCircle(Part.Circle(Vector(-142, -98, 0), Vector(0, 0, 1), 15), math.radians(180), math.radians(270)),
    Part.LineSegment(Vector(-156, -98, 0), Vector(-156, 98, 0)),
    Part.ArcOfCircle(Part.Circle(Vector(-142, 98, 0), Vector(0, 0, 1), 15), math.radians(90), math.radians(180)),
    Part.LineSegment(Vector(-142, 113, 0), Vector(142, 113, 0)),
    Part.ArcOfCircle(Part.Circle(Vector(142, 98, 0), Vector(0, 0, 1), 15), math.radians(0), math.radians(90)),
], False)
sketch15.addConstraint([
    Sketcher.Constraint("Tangent", 0, 2, 1, 1),
    Sketcher.Constraint("Tangent", 1, 2, 2, 1),
    Sketcher.Constraint("Tangent", 2, 2, 3, 1),
    Sketcher.Constraint("Tangent", 3, 2, 4, 1),
    Sketcher.Constraint("Tangent", 4, 2, 5, 1),
    Sketcher.Constraint("Tangent", 5, 2, 6, 1),
    Sketcher.Constraint("Tangent", 6, 2, 7, 1),
    Sketcher.Constraint("Tangent", 7, 2, 0, 1),
    Sketcher.Constraint("Tangent", 8, 2, 9, 2),
    Sketcher.Constraint("Tangent", 9, 1, 10, 1),
    Sketcher.Constraint("Tangent", 10, 2, 11, 2),
    Sketcher.Constraint("Tangent", 11, 1, 12, 1),
    Sketcher.Constraint("Tangent", 12, 2, 13, 2),
    Sketcher.Constraint("Tangent", 13, 1, 14, 1),
    Sketcher.Constraint("Tangent", 14, 2, 15, 2),
    Sketcher.Constraint("Tangent", 15, 1, 8, 1),
    Sketcher.Constraint("Horizontal", 0),
    Sketcher.Constraint("Vertical", 2),
    Sketcher.Constraint("Horizontal", 4),
    Sketcher.Constraint("Vertical", 6),
    Sketcher.Constraint("Vertical", 8),
    Sketcher.Constraint("Horizontal", 10),
    Sketcher.Constraint("Vertical", 12),
    Sketcher.Constraint("Horizontal", 14),
    Sketcher.Constraint("Coincident", 9, 3, 5, 3),
    Sketcher.Constraint("Coincident", 11, 3, 3, 3),
    Sketcher.Constraint("Coincident", 13, 3, 1, 3),
    Sketcher.Constraint("Equal", 1, 3),
    Sketcher.Constraint("Equal", 3, 5),
    Sketcher.Constraint("Equal", 5, 7),
    Sketcher.Constraint("Equal", 13, 15),
    Sketcher.Constraint("Symmetric", 1, 3, 5, 3, -1, 1),
    Sketcher.Constraint("Radius", 1, 18.0),
    Sketcher.Constraint("DistanceX", 0, 2, 0, 1, 283.0),
    Sketcher.Constraint("DistanceY", 2, 2, 2, 1, 196.0),
    Sketcher.Constraint("Radius", 9, 14.75),
])
pocket3 = body.newObject("PartDesign::Pocket", "Pocket002")
pocket3.Profile = sketch15
pocket3.Length = 2

doc.recompute()
